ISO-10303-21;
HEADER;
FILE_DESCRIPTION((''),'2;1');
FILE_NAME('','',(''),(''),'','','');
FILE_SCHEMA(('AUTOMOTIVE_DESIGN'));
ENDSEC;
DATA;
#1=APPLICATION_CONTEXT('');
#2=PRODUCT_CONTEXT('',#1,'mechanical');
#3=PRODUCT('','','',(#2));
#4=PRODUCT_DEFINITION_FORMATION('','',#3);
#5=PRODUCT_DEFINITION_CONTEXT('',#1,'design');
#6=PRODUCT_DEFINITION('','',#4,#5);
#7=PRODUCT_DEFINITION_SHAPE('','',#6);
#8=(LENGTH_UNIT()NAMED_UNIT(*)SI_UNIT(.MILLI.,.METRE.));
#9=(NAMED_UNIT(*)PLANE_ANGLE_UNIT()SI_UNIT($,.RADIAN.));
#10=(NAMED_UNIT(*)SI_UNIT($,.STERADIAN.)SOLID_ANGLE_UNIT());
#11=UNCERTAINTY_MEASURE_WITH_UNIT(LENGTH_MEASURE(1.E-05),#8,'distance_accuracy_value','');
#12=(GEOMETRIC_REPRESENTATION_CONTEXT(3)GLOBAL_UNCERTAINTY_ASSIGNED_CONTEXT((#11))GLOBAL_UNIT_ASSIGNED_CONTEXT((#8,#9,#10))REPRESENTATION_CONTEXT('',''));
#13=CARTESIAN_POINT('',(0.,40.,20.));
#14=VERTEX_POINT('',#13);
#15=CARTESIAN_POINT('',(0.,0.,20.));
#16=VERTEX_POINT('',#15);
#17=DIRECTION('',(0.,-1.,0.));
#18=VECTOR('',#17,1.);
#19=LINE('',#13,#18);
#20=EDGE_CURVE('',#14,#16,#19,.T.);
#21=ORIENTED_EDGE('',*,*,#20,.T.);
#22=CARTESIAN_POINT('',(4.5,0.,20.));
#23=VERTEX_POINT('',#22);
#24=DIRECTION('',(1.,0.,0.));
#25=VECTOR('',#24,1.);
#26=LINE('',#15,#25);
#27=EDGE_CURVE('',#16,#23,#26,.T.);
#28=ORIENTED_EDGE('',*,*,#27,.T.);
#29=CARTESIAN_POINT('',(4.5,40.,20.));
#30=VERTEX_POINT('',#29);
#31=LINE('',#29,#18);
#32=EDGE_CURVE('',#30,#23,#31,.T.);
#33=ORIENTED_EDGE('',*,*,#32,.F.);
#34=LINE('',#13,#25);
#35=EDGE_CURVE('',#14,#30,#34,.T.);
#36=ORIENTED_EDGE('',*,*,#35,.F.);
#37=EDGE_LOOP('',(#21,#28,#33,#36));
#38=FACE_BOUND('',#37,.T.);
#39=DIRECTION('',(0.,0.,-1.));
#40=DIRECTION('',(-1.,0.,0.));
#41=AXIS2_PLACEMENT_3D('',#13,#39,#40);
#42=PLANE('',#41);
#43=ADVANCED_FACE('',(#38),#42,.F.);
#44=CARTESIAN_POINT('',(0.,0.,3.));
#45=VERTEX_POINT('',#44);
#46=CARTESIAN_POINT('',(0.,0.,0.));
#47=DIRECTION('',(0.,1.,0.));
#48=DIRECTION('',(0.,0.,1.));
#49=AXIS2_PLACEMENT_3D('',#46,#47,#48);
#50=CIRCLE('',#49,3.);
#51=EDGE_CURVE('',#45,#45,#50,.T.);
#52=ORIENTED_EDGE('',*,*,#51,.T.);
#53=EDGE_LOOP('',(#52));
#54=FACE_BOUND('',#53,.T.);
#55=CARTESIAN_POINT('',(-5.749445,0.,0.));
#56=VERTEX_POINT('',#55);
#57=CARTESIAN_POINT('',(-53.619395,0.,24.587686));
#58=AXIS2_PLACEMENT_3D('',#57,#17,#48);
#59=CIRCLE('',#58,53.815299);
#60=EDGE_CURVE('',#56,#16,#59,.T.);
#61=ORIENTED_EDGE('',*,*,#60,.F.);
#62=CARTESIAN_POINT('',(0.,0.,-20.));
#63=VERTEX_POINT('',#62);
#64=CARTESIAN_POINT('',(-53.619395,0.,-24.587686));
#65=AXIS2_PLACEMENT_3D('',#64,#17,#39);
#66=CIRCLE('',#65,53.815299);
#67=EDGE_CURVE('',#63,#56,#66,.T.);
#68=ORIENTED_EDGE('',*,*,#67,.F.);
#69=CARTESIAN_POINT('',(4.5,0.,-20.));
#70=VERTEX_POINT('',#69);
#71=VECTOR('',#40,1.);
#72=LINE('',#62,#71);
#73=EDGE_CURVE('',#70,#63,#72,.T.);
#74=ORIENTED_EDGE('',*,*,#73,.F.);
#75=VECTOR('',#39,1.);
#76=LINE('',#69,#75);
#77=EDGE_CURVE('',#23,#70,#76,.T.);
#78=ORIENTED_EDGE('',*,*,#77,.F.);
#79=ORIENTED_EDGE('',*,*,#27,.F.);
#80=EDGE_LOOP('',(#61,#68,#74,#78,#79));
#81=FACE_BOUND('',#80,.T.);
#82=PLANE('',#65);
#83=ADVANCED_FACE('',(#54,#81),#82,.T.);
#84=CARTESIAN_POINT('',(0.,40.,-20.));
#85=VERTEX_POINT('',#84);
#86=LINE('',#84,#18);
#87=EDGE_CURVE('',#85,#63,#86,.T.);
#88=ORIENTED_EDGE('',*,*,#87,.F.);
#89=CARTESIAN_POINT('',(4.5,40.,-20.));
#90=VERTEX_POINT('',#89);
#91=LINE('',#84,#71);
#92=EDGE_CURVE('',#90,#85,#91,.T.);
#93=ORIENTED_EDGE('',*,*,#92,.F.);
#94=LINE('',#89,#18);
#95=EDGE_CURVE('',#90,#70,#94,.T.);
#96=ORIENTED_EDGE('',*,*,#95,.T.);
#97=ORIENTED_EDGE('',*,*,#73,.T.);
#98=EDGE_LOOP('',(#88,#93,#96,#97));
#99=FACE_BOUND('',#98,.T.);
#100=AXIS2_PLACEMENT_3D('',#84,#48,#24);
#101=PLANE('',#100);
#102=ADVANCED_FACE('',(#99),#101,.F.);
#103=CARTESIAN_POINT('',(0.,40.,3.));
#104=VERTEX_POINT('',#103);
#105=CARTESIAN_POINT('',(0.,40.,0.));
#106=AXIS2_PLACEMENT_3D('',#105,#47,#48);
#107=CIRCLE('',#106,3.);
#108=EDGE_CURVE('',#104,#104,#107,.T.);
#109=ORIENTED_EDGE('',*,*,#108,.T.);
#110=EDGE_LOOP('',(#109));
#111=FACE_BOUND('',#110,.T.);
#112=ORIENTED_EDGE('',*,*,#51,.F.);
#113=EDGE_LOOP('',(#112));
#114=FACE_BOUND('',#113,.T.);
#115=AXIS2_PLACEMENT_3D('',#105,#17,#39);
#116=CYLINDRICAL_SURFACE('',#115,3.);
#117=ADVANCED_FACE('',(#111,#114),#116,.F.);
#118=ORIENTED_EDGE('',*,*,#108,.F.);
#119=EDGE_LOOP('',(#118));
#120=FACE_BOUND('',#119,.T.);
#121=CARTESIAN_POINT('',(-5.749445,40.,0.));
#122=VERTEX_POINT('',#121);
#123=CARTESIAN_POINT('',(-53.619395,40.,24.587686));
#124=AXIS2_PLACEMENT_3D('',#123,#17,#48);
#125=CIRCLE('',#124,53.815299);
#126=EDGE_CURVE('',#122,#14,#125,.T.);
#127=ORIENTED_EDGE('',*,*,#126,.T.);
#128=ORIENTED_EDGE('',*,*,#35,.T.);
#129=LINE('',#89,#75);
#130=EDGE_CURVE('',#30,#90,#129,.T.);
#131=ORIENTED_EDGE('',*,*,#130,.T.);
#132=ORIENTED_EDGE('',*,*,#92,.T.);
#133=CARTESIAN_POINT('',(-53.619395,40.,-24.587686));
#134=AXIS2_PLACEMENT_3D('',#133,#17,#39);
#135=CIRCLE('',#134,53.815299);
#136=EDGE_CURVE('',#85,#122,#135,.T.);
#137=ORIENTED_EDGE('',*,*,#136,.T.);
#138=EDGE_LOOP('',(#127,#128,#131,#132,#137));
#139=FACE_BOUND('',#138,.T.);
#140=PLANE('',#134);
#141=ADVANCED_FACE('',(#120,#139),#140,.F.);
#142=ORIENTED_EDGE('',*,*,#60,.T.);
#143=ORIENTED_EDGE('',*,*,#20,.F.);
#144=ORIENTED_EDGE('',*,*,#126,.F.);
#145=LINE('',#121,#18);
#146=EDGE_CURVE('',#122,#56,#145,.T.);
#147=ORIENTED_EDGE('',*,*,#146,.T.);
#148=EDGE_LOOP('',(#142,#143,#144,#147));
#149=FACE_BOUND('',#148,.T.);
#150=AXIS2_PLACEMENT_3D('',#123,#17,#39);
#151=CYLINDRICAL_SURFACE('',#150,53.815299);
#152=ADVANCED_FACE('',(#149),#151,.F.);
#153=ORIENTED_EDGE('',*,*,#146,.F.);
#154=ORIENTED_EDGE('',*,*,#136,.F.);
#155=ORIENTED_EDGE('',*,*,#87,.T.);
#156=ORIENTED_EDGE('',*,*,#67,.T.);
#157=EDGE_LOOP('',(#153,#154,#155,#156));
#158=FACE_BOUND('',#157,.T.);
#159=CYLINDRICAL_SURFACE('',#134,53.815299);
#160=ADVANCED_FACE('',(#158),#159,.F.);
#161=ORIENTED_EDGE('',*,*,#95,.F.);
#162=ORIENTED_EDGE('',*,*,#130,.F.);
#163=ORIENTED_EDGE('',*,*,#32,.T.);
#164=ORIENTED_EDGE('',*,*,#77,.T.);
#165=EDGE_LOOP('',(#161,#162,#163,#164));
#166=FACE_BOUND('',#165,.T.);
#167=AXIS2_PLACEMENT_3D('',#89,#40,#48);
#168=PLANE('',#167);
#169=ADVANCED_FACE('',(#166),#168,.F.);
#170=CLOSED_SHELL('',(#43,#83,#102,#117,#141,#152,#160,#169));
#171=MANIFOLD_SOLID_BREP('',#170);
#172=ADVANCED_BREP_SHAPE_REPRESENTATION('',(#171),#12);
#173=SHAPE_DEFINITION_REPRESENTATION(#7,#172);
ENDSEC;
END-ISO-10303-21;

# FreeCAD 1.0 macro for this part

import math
import FreeCAD as App
import Part
import Sketcher
from FreeCAD import Vector
Q = App.Units.Quantity

doc = App.newDocument("Part")
params = doc.addObject("Spreadsheet::Sheet", "Params")
for row, (alias, value) in enumerate([
    ("sketch1_diameter", "6 mm"),
    ("sketch1_height", "40 mm"),
    ("sketch1_width", "4.5 mm"),
    ("pad1_length", "40 mm"),
], start=1):
    params.set(f"A{row}", alias)
    params.set(f"B{row}", "=" + value)
    params.setAlias(f"B{row}", alias)

body = doc.addObject("PartDesign::Body", "Body")

sketch1 = body.newObject("Sketcher::SketchObject", "Sketch")
sketch1.AttachmentSupport = (doc.getObject("XZ_Plane"), [""])
sketch1.MapMode = "FlatFace"
sketch1.addGeometry(Part.LineSegment(Vector(4.5, -20, 0), Vector(0, -20, 0)), False)
sketch1.addGeometry(Part.ArcOfCircle(Part.Circle(Vector(-53.6, -24.6, 0), Vector(0, 0, 1), 53.8), math.radians(5), math.radians(27)), False)
sketch1.addGeometry(Part.ArcOfCircle(Part.Circle(Vector(-53.6, 24.6, 0), Vector(0, 0, 1), 53.8), math.radians(-27), math.radians(-5)), False)
sketch1.addGeometry(Part.LineSegment(Vector(0, 20, 0), Vector(4.5, 20, 0)), False)
sketch1.addGeometry(Part.LineSegment(Vector(4.5, 20, 0), Vector(4.5, -20, 0)), False)
sketch1.addGeometry(Part.Circle(Vector(0, 0, 0), Vector(0, 0, 1), 3), False)
sketch1.addConstraint(Sketcher.Constraint("Coincident", 0, 2, 1, 1))
sketch1.addConstraint(Sketcher.Constraint("Coincident", 1, 2, 2, 1))
sketch1.addConstraint(Sketcher.Constraint("Coincident", 2, 2, 3, 1))
sketch1.addConstraint(Sketcher.Constraint("Coincident", 3, 2, 4, 1))
sketch1.addConstraint(Sketcher.Constraint("Coincident", 4, 2, 0, 1))
sketch1.addConstraint(Sketcher.Constraint("Horizontal", 0))
sketch1.addConstraint(Sketcher.Constraint("Horizontal", 3))
sketch1.addConstraint(Sketcher.Constraint("Vertical", 4))
sketch1.addConstraint(Sketcher.Constraint("Coincident", 5, 3, -1, 1))
sketch1.addConstraint(Sketcher.Constraint("Equal", 1, 2))
sketch1.addConstraint(Sketcher.Constraint("Symmetric", 0, 2, 2, 2, -1, 1))
sketch1.addConstraint(Sketcher.Constraint("Symmetric", 1, 3, 2, 3, -1))
sketch1.addConstraint(Sketcher.Constraint("Diameter", 5, Q("6 mm")))
sketch1.addConstraint(Sketcher.Constraint("DistanceY", 4, 2, 4, 1, Q("40 mm")))
sketch1.addConstraint(Sketcher.Constraint("DistanceX", 0, 2, 0, 1, Q("4.5 mm")))
sketch1.addConstraint(Sketcher.Constraint("Radius", 1, Q("53.815299 mm")))
sketch1.addConstraint(Sketcher.Constraint("DistanceY", 1, 3, 2, 3, Q("49.175371 mm")))
sketch1.setExpression("Constraints[12]", "Params.sketch1_diameter")
sketch1.setExpression("Constraints[13]", "Params.sketch1_height")
sketch1.setExpression("Constraints[14]", "Params.sketch1_width")
pad1 = body.newObject("PartDesign::Pad", "Pad")
pad1.Profile = sketch1
pad1.setExpression("Length", "Params.pad1_length")
pad1.Reversed = True

doc.recompute()
